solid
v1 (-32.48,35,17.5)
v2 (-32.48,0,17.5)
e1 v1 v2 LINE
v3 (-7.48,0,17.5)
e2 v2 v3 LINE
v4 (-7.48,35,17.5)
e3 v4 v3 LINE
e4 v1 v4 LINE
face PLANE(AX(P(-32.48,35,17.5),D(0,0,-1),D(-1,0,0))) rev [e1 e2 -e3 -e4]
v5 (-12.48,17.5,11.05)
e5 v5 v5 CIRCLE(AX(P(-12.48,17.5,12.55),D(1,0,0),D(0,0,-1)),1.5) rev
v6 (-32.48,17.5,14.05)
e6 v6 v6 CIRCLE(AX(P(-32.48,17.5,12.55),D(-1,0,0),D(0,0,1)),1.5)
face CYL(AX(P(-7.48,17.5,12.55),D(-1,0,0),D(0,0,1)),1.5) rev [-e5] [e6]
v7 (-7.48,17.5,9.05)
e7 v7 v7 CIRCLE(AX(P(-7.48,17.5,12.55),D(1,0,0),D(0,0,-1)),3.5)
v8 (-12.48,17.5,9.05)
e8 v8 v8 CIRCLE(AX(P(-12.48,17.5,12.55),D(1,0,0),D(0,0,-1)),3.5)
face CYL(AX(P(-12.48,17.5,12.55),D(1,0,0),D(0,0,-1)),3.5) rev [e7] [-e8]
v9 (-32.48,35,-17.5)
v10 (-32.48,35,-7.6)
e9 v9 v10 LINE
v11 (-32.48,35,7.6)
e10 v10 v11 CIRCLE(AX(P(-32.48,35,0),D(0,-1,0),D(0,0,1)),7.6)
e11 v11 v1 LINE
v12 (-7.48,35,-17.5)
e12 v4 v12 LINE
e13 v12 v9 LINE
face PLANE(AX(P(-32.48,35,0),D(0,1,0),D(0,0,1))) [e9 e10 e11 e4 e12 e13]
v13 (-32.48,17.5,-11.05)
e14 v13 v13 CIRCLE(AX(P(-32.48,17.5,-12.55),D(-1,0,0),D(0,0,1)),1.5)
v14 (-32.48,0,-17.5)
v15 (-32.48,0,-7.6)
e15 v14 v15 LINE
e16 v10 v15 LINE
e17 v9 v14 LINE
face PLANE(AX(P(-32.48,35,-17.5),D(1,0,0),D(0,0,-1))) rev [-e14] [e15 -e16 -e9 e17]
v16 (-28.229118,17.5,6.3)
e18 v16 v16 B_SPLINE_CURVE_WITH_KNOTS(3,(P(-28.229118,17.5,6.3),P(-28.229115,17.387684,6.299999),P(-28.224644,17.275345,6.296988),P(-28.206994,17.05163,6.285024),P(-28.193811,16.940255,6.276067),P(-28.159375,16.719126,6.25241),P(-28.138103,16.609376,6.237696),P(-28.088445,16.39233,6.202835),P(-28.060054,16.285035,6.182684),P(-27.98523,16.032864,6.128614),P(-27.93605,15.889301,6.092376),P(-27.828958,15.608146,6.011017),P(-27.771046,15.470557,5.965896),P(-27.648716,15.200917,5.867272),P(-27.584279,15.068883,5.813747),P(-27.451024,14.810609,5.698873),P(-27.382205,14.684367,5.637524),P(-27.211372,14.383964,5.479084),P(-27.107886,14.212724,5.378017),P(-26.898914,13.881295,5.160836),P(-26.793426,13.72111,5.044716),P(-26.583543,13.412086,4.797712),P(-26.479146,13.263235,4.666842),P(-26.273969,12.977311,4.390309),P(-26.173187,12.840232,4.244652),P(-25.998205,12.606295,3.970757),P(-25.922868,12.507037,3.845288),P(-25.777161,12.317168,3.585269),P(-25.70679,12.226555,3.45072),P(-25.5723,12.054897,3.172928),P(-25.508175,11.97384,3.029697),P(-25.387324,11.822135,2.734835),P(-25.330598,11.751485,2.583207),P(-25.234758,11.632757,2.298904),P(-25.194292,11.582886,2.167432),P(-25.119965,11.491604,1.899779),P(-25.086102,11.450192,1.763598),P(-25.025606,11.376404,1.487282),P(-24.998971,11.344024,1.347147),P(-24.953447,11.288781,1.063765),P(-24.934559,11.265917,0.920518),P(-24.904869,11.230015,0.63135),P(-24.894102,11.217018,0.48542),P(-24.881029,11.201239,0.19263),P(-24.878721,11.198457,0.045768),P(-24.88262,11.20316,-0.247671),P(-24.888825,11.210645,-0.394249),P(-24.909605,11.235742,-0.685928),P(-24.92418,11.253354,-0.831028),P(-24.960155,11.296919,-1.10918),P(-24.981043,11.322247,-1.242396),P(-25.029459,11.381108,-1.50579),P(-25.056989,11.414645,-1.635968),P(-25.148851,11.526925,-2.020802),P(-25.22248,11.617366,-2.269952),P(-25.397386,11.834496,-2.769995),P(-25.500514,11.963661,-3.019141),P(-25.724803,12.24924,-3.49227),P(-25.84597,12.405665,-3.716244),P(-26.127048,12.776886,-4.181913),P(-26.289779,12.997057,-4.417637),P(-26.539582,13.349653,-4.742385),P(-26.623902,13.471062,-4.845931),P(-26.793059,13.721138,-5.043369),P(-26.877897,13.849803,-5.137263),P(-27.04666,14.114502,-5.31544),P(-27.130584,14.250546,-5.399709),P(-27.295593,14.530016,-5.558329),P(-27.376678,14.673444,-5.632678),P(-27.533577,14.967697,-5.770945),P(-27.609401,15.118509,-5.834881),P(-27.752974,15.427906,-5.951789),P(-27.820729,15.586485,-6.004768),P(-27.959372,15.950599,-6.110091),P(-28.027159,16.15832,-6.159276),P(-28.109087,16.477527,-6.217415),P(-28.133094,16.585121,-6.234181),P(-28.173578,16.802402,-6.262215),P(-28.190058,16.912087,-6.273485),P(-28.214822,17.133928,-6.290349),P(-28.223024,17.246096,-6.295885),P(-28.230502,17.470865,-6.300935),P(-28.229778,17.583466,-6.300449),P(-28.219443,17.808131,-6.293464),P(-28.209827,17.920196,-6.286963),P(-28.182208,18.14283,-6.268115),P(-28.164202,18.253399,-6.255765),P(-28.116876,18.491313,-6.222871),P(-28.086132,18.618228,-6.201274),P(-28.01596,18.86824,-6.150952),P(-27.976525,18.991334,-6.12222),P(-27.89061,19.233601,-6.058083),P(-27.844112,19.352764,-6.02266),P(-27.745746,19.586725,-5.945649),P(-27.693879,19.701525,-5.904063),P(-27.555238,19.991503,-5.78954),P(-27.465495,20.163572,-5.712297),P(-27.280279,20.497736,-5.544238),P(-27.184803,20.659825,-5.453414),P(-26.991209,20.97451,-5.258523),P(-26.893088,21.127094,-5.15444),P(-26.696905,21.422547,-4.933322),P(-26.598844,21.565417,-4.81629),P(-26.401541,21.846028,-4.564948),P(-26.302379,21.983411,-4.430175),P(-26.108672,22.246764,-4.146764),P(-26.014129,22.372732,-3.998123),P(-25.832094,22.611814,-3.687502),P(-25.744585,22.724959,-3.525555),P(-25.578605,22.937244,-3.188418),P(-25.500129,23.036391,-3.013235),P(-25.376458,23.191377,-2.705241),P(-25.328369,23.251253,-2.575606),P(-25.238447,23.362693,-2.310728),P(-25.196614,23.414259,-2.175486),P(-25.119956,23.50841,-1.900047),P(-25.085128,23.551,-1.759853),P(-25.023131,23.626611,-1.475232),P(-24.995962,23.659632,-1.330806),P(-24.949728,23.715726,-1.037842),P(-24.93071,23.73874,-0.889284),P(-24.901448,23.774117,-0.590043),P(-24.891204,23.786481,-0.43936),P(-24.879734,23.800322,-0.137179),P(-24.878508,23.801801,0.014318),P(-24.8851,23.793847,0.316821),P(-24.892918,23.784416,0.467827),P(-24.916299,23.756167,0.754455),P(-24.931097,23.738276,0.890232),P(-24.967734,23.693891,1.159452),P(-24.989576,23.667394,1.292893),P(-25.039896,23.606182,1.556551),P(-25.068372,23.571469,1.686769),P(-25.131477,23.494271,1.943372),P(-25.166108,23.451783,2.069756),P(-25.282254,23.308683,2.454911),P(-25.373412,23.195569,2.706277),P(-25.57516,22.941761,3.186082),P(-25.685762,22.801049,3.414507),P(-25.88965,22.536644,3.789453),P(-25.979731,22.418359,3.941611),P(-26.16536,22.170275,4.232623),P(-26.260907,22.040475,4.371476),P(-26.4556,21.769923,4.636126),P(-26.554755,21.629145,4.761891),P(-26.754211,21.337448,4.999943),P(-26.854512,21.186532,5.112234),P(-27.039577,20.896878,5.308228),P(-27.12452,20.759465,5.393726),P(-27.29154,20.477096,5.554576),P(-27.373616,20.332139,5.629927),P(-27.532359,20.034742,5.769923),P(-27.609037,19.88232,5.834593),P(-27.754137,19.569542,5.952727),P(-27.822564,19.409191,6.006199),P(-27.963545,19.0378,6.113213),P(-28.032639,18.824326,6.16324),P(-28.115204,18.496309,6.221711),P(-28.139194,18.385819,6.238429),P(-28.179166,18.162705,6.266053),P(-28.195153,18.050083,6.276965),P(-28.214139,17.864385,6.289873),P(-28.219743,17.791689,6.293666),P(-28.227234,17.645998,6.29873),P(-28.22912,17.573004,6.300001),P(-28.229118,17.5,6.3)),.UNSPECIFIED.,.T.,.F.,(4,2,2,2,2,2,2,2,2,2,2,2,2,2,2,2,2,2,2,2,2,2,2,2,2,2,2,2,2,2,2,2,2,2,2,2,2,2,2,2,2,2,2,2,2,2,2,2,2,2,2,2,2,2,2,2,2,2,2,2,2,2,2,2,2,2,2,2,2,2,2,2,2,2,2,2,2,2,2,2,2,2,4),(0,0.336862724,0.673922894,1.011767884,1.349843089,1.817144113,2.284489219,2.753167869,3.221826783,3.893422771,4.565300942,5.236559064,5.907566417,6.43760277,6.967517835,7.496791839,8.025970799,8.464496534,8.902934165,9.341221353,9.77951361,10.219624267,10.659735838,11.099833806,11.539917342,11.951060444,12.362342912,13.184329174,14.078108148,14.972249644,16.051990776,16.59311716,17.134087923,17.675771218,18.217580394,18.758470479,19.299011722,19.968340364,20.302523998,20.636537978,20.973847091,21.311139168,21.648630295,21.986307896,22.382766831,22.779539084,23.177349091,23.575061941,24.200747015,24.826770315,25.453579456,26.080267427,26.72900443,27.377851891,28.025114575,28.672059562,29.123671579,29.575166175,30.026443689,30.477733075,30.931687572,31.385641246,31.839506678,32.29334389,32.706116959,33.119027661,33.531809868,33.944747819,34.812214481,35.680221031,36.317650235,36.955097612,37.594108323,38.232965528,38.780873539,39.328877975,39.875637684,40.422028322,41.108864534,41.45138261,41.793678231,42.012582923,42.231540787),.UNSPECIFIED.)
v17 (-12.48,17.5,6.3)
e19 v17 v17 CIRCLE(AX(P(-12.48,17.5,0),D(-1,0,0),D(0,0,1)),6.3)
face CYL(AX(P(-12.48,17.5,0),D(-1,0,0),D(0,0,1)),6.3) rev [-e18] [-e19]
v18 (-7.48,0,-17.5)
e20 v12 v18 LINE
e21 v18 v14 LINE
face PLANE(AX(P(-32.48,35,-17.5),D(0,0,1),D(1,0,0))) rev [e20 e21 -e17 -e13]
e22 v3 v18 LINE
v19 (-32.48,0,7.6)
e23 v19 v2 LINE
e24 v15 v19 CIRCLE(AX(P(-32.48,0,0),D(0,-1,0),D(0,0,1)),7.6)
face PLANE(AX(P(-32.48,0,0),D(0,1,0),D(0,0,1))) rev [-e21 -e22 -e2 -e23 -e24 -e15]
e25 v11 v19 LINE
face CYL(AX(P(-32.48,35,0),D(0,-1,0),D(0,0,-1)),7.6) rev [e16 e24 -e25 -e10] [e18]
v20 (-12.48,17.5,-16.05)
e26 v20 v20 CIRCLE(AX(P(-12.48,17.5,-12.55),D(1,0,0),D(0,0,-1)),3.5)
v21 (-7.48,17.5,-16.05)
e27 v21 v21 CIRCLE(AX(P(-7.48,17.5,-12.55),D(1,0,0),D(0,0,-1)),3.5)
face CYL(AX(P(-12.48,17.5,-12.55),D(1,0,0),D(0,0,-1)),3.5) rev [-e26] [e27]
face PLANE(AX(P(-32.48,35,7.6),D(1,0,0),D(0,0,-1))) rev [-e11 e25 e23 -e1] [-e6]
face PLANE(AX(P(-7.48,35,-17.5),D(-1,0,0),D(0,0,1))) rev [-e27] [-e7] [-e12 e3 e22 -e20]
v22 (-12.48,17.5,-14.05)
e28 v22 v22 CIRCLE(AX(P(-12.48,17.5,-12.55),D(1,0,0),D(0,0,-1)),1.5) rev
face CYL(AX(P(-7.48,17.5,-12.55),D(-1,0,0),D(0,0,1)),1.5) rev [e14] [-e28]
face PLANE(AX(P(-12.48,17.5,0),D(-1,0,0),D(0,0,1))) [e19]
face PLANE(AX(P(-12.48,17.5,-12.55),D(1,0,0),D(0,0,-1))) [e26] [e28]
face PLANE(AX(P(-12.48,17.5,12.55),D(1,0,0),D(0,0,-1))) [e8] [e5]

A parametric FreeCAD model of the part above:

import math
import FreeCAD as App
import Part
import Sketcher

V = App.Vector

doc = App.newDocument("Part")
body = doc.addObject("PartDesign::Body", "Body")

sketch1 = body.newObject("Sketcher::SketchObject", "Sketch")
sketch1.AttachmentSupport = (doc.getObject("XZ_Plane"), [""])
sketch1.MapMode = "FlatFace"
sketch1.addGeometry(Part.LineSegment(V(-32, 8, 0), V(-32, 18, 0)), False)
sketch1.addGeometry(Part.LineSegment(V(-32, 18, 0), V(-7, 18, 0)), False)
sketch1.addGeometry(Part.LineSegment(V(-7, 18, 0), V(-7, -18, 0)), False)
sketch1.addGeometry(Part.LineSegment(V(-7, -18, 0), V(-32, -18, 0)), False)
sketch1.addGeometry(Part.LineSegment(V(-32, -18, 0), V(-32, -8, 0)), False)
sketch1.addGeometry(Part.ArcOfCircle(Part.Circle(V(-32, 0, 0), V(0, 0, 1), 8), math.radians(-90), math.radians(90)), False)
sketch1.addConstraint(Sketcher.Constraint("Coincident", 0, 2, 1, 1))
sketch1.addConstraint(Sketcher.Constraint("Coincident", 1, 2, 2, 1))
sketch1.addConstraint(Sketcher.Constraint("Coincident", 2, 2, 3, 1))
sketch1.addConstraint(Sketcher.Constraint("Coincident", 3, 2, 4, 1))
sketch1.addConstraint(Sketcher.Constraint("Coincident", 4, 2, 5, 1))
sketch1.addConstraint(Sketcher.Constraint("Coincident", 5, 2, 0, 1))
sketch1.addConstraint(Sketcher.Constraint("Vertical", 0))
sketch1.addConstraint(Sketcher.Constraint("Horizontal", 1))
sketch1.addConstraint(Sketcher.Constraint("Vertical", 2))
sketch1.addConstraint(Sketcher.Constraint("Horizontal", 3))
sketch1.addConstraint(Sketcher.Constraint("Vertical", 4))
sketch1.addConstraint(Sketcher.Constraint("Symmetric", 0, 2, 3, 2, -1))
sketch1.addConstraint(Sketcher.Constraint("PointOnObject", 5, 3, -1))
sketch1.addConstraint(Sketcher.Constraint("Vertical", 5, 3, 0, 2))
sketch1.addConstraint(Sketcher.Constraint("Radius", 5, 7.6))
sketch1.addConstraint(Sketcher.Constraint("DistanceX", 1, 1, 1, 2, 25.0))
sketch1.addConstraint(Sketcher.Constraint("DistanceY", 2, 2, 2, 1, 35.0))
sketch1.addConstraint(Sketcher.Constraint("DistanceX", 5, 3, -1, 1, 32.48))
pad1 = body.newObject("PartDesign::Pad", "Pad")
pad1.Profile = sketch1
pad1.Length = 35
pad1.Reversed = True

sketch2 = body.newObject("Sketcher::SketchObject", "Sketch001")
sketch2.AttachmentSupport = (doc.getObject("YZ_Plane"), [""])
sketch2.MapMode = "FlatFace"
sketch2.AttachmentOffset = App.Placement(V(0, 0, -32.48), App.Rotation())
sketch2.addGeometry(Part.Circle(V(18, 0, 0), V(0, 0, 1), 6), False)
sketch2.addConstraint(Sketcher.Constraint("PointOnObject", 0, 3, -1))
sketch2.addConstraint(Sketcher.Constraint("Diameter", 0, 12.6))
sketch2.addConstraint(Sketcher.Constraint("DistanceX", -1, 1, 0, 3, 17.5))
pocket1 = body.newObject("PartDesign::Pocket", "Pocket")
pocket1.Profile = sketch2
pocket1.Length = 20
pocket1.Reversed = True

sketch3 = body.newObject("Sketcher::SketchObject", "Sketch002")
sketch3.AttachmentSupport = (doc.getObject("YZ_Plane"), [""])
sketch3.MapMode = "FlatFace"
sketch3.AttachmentOffset = App.Placement(V(0, 0, -32.48), App.Rotation())
sketch3.addGeometry(Part.Circle(V(17.5, 12.6, 0), V(0, 0, 1), 1.5), False)
sketch3.addGeometry(Part.Circle(V(17.5, -12.6, 0), V(0, 0, 1), 1.5), False)
sketch3.addConstraint(Sketcher.Constraint("Equal", 0, 1))
sketch3.addConstraint(Sketcher.Constraint("Symmetric", 0, 3, 1, 3, -1))
sketch3.addConstraint(Sketcher.Constraint("Diameter", 0, 3.0))
sketch3.addConstraint(Sketcher.Constraint("DistanceX", -1, 1, 0, 3, 17.5))
sketch3.addConstraint(Sketcher.Constraint("DistanceY", 1, 3, 0, 3, 25.1))
pocket2 = body.newObject("PartDesign::Pocket", "Pocket001")
pocket2.Profile = sketch3
pocket2.Type = "ThroughAll"
pocket2.Reversed = True

sketch4 = body.newObject("Sketcher::SketchObject", "Sketch003")
sketch4.AttachmentSupport = (doc.getObject("YZ_Plane"), [""])
sketch4.MapMode = "FlatFace"
sketch4.AttachmentOffset = App.Placement(V(0, 0, -7.48), App.Rotation())
sketch4.addGeometry(Part.Circle(V(17.5, 12.6, 0), V(0, 0, 1), 3.5), False)
sketch4.addGeometry(Part.Circle(V(17.5, -12.6, 0), V(0, 0, 1), 3.5), False)
sketch4.addConstraint(Sketcher.Constraint("Equal", 0, 1))
sketch4.addConstraint(Sketcher.Constraint("Symmetric", 0, 3, 1, 3, -1))
sketch4.addConstraint(Sketcher.Constraint("Diameter", 0, 7.0))
sketch4.addConstraint(Sketcher.Constraint("DistanceX", -1, 1, 0, 3, 17.5))
sketch4.addConstraint(Sketcher.Constraint("DistanceY", 1, 3, 0, 3, 25.1))
pocket3 = body.newObject("PartDesign::Pocket", "Pocket002")
pocket3.Profile = sketch4
pocket3.Length = 5

doc.recompute()
